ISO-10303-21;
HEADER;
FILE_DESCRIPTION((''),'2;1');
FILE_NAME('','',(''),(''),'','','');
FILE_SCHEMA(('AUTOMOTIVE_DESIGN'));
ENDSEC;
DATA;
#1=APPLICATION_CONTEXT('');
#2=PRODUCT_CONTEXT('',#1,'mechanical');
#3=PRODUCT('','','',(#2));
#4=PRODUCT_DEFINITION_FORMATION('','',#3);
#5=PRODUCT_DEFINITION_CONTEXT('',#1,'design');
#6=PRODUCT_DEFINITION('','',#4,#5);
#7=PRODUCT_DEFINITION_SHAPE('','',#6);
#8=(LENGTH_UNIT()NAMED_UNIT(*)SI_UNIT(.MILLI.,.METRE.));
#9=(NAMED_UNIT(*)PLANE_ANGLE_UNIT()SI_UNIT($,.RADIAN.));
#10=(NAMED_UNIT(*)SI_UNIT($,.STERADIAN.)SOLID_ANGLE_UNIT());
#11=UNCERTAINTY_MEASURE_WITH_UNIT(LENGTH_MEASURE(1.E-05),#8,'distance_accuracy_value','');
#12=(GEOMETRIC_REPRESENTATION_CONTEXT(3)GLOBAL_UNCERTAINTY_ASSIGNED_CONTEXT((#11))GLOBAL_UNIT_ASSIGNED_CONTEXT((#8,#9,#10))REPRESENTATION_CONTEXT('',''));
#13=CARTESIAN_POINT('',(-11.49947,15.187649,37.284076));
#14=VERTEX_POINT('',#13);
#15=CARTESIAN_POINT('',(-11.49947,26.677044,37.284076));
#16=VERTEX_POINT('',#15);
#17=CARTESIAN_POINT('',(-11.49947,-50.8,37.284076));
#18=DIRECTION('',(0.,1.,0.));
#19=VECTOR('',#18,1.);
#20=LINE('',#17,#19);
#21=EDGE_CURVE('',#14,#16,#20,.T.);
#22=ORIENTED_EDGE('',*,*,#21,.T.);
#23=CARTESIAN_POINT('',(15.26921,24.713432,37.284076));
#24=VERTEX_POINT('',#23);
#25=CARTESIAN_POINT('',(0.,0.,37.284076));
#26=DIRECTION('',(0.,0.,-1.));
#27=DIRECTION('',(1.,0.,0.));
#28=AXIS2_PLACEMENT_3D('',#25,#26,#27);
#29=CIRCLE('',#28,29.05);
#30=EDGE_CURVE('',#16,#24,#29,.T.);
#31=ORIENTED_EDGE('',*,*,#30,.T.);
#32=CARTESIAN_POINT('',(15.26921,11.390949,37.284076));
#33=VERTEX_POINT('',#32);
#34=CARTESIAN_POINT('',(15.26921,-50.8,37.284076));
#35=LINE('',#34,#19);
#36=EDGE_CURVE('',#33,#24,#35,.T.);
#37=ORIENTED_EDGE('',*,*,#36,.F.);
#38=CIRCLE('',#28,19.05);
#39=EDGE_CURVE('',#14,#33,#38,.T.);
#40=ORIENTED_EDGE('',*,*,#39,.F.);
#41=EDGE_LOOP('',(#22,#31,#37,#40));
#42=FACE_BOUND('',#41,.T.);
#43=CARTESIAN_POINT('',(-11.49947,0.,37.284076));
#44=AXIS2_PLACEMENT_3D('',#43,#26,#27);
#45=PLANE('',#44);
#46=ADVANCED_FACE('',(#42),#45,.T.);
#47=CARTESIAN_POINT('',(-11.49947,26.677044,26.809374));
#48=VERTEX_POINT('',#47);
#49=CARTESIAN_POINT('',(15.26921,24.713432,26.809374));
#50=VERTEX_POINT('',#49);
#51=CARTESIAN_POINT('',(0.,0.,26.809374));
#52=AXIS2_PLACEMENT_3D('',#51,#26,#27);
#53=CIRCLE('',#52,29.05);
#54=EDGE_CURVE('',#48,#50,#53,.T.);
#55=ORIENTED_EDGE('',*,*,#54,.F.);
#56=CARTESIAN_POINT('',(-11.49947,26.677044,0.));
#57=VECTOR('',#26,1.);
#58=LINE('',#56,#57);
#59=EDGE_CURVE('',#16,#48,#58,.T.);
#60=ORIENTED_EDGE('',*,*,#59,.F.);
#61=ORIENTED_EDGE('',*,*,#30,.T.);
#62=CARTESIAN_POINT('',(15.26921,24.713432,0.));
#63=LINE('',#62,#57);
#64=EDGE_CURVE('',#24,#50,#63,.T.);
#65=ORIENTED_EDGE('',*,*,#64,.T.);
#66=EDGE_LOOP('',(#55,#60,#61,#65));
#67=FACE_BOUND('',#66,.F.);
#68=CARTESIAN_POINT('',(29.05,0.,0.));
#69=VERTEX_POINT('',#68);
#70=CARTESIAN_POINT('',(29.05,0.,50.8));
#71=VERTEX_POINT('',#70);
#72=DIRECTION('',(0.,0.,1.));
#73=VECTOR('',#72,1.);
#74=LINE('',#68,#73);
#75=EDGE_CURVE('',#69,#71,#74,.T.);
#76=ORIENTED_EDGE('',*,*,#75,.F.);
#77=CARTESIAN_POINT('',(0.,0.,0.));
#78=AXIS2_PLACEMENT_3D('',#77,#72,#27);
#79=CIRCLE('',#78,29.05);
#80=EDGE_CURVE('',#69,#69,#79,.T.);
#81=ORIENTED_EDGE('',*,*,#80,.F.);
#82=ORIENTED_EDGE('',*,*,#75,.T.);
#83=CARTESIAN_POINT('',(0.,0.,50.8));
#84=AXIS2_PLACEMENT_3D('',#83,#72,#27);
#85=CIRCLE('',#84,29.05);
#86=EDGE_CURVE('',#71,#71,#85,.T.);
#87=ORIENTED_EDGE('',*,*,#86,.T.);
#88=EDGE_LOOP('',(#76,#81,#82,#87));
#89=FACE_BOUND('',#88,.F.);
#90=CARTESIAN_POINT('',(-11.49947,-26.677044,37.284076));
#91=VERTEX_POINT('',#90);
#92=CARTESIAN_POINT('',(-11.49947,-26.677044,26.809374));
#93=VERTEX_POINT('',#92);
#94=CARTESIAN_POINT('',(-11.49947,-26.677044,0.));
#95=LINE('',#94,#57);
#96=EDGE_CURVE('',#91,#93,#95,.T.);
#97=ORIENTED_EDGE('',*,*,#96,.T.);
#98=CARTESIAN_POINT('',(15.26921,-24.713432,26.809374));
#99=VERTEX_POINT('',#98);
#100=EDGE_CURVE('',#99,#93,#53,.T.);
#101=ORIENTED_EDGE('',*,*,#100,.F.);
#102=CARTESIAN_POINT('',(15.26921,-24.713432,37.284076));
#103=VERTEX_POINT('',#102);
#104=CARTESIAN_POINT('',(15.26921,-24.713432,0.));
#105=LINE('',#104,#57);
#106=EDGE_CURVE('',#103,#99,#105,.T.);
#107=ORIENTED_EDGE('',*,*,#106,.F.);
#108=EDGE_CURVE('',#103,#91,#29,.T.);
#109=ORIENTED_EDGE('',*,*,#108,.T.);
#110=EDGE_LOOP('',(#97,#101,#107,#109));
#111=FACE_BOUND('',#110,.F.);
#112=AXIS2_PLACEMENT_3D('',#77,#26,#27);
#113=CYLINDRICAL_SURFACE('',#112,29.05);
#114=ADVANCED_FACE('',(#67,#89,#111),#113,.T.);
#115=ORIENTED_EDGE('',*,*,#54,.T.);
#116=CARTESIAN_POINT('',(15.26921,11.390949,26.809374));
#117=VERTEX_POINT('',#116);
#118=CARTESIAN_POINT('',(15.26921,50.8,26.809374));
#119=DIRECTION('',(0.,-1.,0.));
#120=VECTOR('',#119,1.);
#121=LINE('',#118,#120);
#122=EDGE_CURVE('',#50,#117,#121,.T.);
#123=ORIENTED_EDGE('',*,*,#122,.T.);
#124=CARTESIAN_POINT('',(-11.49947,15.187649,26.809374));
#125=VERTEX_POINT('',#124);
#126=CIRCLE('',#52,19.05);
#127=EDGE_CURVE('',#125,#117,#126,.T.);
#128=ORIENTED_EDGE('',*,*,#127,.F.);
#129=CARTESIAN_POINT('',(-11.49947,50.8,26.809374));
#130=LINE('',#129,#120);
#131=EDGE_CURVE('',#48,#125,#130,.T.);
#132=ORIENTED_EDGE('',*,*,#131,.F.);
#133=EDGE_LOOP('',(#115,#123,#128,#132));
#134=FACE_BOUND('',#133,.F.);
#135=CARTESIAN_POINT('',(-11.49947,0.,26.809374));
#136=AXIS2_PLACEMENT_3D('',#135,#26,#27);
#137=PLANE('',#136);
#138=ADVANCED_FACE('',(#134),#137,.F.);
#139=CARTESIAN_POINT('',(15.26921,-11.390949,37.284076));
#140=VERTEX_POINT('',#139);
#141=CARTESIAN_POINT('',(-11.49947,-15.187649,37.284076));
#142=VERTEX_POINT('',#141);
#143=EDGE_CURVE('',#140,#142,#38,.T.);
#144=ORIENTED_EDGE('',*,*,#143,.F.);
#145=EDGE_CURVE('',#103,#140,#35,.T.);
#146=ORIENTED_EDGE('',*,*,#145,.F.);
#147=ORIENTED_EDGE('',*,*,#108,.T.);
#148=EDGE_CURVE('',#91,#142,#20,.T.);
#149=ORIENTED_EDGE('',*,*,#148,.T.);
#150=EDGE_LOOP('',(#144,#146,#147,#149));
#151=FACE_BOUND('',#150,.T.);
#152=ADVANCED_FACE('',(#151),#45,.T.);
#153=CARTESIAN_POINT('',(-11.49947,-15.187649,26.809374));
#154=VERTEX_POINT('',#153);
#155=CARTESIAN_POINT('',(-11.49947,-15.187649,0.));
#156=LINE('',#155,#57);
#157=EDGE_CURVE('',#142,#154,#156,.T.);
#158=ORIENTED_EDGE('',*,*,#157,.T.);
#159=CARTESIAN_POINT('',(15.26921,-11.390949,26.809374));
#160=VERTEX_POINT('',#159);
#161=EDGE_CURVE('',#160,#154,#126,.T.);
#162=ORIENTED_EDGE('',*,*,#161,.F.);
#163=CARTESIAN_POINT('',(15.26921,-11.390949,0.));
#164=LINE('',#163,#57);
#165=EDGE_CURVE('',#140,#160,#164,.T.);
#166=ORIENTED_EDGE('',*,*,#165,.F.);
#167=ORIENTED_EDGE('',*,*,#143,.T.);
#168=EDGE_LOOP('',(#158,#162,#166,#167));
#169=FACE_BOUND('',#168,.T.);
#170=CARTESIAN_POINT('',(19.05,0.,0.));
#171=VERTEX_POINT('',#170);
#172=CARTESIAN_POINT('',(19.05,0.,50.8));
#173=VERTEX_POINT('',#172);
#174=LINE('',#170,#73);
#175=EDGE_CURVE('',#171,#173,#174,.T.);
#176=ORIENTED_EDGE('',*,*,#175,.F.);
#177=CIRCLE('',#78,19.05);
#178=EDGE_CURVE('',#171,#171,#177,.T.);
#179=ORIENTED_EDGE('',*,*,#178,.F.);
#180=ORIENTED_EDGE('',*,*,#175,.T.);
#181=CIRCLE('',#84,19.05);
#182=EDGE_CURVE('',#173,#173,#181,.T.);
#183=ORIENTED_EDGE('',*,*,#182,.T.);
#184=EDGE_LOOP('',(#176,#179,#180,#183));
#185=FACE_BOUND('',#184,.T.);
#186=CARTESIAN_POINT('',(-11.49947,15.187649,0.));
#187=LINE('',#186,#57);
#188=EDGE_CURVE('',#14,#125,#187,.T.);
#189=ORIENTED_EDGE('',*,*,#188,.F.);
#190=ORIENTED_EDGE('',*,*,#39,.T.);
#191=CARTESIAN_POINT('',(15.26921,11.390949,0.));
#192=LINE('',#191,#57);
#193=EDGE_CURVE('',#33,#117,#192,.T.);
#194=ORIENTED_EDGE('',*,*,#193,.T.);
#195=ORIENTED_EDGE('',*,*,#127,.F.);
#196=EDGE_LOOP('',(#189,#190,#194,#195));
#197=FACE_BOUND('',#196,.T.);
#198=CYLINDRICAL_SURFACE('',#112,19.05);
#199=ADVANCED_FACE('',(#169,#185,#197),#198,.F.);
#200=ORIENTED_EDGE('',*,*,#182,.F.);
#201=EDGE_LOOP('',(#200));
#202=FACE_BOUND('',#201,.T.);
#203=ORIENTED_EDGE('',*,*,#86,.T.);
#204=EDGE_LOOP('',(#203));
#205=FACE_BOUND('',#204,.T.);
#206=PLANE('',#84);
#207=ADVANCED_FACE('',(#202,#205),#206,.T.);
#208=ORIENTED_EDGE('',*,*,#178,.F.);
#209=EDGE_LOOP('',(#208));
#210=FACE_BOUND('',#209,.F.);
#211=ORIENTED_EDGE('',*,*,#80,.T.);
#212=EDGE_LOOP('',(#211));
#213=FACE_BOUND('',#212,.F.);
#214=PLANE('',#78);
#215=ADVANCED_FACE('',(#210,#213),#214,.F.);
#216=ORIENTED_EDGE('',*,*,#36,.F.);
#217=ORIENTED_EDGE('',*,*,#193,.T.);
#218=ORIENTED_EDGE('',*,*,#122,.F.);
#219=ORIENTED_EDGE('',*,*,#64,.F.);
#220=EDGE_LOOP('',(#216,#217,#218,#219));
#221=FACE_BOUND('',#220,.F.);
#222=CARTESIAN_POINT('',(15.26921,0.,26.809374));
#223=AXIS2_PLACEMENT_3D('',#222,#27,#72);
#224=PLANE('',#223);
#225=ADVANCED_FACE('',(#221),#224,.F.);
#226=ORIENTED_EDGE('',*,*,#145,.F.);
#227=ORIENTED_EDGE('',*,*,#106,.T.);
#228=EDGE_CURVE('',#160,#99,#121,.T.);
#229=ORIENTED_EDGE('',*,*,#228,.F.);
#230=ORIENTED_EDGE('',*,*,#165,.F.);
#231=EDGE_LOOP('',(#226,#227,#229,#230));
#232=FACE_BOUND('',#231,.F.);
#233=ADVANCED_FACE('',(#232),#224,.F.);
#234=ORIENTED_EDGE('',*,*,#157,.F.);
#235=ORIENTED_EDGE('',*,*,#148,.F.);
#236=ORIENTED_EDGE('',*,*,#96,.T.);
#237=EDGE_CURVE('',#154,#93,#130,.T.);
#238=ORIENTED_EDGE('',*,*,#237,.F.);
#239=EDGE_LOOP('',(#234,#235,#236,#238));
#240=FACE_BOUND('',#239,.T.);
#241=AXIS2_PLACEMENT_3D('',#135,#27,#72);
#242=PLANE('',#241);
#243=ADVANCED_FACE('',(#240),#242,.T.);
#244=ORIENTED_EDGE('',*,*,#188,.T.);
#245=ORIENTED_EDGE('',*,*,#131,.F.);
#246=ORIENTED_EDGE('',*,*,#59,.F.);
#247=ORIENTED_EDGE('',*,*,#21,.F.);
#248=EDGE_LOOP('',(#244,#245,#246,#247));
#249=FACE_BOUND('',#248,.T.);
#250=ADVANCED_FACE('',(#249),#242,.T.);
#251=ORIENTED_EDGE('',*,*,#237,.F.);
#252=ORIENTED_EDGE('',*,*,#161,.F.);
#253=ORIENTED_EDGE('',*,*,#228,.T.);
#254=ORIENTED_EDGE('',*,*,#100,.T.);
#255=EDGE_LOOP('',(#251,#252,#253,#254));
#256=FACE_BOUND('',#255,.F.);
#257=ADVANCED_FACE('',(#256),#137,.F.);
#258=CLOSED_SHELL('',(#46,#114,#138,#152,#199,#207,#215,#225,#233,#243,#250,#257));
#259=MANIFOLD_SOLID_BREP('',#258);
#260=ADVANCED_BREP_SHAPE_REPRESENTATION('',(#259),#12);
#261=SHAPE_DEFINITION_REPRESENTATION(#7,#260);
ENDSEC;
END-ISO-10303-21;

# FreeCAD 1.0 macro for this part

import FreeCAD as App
import Part
import Sketcher
Q = App.Units.Quantity


def add_polygon(sketch, points):
    """Adds a closed chain of lines whose ends are joined by coincident constraints."""
    first, n = sketch.GeometryCount, len(points)
    for a, b in zip(points, points[1:] + points[:1]):
        sketch.addGeometry(Part.LineSegment(App.Vector(*a, 0), App.Vector(*b, 0)), False)
    for i in range(n):
        sketch.addConstraint(Sketcher.Constraint("Coincident", first + i, 2, first + (i + 1) % n, 1))

doc = App.newDocument("Part")
body = doc.addObject("PartDesign::Body", "Body")

sketch1 = body.newObject("Sketcher::SketchObject", "Sketch")
sketch1.AttachmentSupport = (doc.getObject("XY_Plane"), [""])
sketch1.MapMode = "FlatFace"
sketch1.addGeometry(Part.Circle(App.Vector(0, 0, 0), App.Vector(0, 0, 1), 29.05), False)
sketch1.addGeometry(Part.Circle(App.Vector(0, 0, 0), App.Vector(0, 0, 1), 19.05), False)
sketch1.addConstraint(Sketcher.Constraint("Coincident", 0, 3, -1, 1))
sketch1.addConstraint(Sketcher.Constraint("Coincident", 1, 3, -1, 1))
sketch1.addConstraint(Sketcher.Constraint("Diameter", 1, Q("1.5 in")))
sketch1.addConstraint(Sketcher.Constraint("Diameter", 0, Q("58.1 mm")))
pad1 = body.newObject("PartDesign::Pad", "Pad")
pad1.Profile = sketch1
pad1.Length = Q("2 in")
body2 = doc.addObject("PartDesign::Body", "Body001")

sketch2 = body2.newObject("Sketcher::SketchObject", "Sketch001")
sketch2.AttachmentSupport = (doc.getObject("XZ_Plane001"), [""])
sketch2.MapMode = "FlatFace"
add_polygon(sketch2, [(-11.49947, 37.284076), (-11.49947, 26.809374), (15.26921, 26.809374), (15.26921, 37.284076)])
sketch2.addConstraint(Sketcher.Constraint("Vertical", 0))
sketch2.addConstraint(Sketcher.Constraint("Horizontal", 1))
sketch2.addConstraint(Sketcher.Constraint("Vertical", 2))
sketch2.addConstraint(Sketcher.Constraint("Horizontal", 3))
sketch2.addConstraint(Sketcher.Constraint("DistanceX", 1, 1, 1, 2, Q("26.768681 mm")))
sketch2.addConstraint(Sketcher.Constraint("DistanceY", 0, 2, 0, 1, Q("10.474702 mm")))
sketch2.addConstraint(Sketcher.Constraint("DistanceX", 0, 2, -1, 1, Q("11.49947 mm")))
sketch2.addConstraint(Sketcher.Constraint("DistanceY", -1, 1, 0, 2, Q("26.809374 mm")))
pad2 = body2.newObject("PartDesign::Pad", "Pad001")
pad2.Profile = sketch2
pad2.Length = Q("4 in")
pad2.Midplane = True
doc.recompute()

boolean = body.newObject("PartDesign::Boolean", "Boolean")
boolean.Type = "Cut"
boolean.addObjects([body2])

doc.recompute()
